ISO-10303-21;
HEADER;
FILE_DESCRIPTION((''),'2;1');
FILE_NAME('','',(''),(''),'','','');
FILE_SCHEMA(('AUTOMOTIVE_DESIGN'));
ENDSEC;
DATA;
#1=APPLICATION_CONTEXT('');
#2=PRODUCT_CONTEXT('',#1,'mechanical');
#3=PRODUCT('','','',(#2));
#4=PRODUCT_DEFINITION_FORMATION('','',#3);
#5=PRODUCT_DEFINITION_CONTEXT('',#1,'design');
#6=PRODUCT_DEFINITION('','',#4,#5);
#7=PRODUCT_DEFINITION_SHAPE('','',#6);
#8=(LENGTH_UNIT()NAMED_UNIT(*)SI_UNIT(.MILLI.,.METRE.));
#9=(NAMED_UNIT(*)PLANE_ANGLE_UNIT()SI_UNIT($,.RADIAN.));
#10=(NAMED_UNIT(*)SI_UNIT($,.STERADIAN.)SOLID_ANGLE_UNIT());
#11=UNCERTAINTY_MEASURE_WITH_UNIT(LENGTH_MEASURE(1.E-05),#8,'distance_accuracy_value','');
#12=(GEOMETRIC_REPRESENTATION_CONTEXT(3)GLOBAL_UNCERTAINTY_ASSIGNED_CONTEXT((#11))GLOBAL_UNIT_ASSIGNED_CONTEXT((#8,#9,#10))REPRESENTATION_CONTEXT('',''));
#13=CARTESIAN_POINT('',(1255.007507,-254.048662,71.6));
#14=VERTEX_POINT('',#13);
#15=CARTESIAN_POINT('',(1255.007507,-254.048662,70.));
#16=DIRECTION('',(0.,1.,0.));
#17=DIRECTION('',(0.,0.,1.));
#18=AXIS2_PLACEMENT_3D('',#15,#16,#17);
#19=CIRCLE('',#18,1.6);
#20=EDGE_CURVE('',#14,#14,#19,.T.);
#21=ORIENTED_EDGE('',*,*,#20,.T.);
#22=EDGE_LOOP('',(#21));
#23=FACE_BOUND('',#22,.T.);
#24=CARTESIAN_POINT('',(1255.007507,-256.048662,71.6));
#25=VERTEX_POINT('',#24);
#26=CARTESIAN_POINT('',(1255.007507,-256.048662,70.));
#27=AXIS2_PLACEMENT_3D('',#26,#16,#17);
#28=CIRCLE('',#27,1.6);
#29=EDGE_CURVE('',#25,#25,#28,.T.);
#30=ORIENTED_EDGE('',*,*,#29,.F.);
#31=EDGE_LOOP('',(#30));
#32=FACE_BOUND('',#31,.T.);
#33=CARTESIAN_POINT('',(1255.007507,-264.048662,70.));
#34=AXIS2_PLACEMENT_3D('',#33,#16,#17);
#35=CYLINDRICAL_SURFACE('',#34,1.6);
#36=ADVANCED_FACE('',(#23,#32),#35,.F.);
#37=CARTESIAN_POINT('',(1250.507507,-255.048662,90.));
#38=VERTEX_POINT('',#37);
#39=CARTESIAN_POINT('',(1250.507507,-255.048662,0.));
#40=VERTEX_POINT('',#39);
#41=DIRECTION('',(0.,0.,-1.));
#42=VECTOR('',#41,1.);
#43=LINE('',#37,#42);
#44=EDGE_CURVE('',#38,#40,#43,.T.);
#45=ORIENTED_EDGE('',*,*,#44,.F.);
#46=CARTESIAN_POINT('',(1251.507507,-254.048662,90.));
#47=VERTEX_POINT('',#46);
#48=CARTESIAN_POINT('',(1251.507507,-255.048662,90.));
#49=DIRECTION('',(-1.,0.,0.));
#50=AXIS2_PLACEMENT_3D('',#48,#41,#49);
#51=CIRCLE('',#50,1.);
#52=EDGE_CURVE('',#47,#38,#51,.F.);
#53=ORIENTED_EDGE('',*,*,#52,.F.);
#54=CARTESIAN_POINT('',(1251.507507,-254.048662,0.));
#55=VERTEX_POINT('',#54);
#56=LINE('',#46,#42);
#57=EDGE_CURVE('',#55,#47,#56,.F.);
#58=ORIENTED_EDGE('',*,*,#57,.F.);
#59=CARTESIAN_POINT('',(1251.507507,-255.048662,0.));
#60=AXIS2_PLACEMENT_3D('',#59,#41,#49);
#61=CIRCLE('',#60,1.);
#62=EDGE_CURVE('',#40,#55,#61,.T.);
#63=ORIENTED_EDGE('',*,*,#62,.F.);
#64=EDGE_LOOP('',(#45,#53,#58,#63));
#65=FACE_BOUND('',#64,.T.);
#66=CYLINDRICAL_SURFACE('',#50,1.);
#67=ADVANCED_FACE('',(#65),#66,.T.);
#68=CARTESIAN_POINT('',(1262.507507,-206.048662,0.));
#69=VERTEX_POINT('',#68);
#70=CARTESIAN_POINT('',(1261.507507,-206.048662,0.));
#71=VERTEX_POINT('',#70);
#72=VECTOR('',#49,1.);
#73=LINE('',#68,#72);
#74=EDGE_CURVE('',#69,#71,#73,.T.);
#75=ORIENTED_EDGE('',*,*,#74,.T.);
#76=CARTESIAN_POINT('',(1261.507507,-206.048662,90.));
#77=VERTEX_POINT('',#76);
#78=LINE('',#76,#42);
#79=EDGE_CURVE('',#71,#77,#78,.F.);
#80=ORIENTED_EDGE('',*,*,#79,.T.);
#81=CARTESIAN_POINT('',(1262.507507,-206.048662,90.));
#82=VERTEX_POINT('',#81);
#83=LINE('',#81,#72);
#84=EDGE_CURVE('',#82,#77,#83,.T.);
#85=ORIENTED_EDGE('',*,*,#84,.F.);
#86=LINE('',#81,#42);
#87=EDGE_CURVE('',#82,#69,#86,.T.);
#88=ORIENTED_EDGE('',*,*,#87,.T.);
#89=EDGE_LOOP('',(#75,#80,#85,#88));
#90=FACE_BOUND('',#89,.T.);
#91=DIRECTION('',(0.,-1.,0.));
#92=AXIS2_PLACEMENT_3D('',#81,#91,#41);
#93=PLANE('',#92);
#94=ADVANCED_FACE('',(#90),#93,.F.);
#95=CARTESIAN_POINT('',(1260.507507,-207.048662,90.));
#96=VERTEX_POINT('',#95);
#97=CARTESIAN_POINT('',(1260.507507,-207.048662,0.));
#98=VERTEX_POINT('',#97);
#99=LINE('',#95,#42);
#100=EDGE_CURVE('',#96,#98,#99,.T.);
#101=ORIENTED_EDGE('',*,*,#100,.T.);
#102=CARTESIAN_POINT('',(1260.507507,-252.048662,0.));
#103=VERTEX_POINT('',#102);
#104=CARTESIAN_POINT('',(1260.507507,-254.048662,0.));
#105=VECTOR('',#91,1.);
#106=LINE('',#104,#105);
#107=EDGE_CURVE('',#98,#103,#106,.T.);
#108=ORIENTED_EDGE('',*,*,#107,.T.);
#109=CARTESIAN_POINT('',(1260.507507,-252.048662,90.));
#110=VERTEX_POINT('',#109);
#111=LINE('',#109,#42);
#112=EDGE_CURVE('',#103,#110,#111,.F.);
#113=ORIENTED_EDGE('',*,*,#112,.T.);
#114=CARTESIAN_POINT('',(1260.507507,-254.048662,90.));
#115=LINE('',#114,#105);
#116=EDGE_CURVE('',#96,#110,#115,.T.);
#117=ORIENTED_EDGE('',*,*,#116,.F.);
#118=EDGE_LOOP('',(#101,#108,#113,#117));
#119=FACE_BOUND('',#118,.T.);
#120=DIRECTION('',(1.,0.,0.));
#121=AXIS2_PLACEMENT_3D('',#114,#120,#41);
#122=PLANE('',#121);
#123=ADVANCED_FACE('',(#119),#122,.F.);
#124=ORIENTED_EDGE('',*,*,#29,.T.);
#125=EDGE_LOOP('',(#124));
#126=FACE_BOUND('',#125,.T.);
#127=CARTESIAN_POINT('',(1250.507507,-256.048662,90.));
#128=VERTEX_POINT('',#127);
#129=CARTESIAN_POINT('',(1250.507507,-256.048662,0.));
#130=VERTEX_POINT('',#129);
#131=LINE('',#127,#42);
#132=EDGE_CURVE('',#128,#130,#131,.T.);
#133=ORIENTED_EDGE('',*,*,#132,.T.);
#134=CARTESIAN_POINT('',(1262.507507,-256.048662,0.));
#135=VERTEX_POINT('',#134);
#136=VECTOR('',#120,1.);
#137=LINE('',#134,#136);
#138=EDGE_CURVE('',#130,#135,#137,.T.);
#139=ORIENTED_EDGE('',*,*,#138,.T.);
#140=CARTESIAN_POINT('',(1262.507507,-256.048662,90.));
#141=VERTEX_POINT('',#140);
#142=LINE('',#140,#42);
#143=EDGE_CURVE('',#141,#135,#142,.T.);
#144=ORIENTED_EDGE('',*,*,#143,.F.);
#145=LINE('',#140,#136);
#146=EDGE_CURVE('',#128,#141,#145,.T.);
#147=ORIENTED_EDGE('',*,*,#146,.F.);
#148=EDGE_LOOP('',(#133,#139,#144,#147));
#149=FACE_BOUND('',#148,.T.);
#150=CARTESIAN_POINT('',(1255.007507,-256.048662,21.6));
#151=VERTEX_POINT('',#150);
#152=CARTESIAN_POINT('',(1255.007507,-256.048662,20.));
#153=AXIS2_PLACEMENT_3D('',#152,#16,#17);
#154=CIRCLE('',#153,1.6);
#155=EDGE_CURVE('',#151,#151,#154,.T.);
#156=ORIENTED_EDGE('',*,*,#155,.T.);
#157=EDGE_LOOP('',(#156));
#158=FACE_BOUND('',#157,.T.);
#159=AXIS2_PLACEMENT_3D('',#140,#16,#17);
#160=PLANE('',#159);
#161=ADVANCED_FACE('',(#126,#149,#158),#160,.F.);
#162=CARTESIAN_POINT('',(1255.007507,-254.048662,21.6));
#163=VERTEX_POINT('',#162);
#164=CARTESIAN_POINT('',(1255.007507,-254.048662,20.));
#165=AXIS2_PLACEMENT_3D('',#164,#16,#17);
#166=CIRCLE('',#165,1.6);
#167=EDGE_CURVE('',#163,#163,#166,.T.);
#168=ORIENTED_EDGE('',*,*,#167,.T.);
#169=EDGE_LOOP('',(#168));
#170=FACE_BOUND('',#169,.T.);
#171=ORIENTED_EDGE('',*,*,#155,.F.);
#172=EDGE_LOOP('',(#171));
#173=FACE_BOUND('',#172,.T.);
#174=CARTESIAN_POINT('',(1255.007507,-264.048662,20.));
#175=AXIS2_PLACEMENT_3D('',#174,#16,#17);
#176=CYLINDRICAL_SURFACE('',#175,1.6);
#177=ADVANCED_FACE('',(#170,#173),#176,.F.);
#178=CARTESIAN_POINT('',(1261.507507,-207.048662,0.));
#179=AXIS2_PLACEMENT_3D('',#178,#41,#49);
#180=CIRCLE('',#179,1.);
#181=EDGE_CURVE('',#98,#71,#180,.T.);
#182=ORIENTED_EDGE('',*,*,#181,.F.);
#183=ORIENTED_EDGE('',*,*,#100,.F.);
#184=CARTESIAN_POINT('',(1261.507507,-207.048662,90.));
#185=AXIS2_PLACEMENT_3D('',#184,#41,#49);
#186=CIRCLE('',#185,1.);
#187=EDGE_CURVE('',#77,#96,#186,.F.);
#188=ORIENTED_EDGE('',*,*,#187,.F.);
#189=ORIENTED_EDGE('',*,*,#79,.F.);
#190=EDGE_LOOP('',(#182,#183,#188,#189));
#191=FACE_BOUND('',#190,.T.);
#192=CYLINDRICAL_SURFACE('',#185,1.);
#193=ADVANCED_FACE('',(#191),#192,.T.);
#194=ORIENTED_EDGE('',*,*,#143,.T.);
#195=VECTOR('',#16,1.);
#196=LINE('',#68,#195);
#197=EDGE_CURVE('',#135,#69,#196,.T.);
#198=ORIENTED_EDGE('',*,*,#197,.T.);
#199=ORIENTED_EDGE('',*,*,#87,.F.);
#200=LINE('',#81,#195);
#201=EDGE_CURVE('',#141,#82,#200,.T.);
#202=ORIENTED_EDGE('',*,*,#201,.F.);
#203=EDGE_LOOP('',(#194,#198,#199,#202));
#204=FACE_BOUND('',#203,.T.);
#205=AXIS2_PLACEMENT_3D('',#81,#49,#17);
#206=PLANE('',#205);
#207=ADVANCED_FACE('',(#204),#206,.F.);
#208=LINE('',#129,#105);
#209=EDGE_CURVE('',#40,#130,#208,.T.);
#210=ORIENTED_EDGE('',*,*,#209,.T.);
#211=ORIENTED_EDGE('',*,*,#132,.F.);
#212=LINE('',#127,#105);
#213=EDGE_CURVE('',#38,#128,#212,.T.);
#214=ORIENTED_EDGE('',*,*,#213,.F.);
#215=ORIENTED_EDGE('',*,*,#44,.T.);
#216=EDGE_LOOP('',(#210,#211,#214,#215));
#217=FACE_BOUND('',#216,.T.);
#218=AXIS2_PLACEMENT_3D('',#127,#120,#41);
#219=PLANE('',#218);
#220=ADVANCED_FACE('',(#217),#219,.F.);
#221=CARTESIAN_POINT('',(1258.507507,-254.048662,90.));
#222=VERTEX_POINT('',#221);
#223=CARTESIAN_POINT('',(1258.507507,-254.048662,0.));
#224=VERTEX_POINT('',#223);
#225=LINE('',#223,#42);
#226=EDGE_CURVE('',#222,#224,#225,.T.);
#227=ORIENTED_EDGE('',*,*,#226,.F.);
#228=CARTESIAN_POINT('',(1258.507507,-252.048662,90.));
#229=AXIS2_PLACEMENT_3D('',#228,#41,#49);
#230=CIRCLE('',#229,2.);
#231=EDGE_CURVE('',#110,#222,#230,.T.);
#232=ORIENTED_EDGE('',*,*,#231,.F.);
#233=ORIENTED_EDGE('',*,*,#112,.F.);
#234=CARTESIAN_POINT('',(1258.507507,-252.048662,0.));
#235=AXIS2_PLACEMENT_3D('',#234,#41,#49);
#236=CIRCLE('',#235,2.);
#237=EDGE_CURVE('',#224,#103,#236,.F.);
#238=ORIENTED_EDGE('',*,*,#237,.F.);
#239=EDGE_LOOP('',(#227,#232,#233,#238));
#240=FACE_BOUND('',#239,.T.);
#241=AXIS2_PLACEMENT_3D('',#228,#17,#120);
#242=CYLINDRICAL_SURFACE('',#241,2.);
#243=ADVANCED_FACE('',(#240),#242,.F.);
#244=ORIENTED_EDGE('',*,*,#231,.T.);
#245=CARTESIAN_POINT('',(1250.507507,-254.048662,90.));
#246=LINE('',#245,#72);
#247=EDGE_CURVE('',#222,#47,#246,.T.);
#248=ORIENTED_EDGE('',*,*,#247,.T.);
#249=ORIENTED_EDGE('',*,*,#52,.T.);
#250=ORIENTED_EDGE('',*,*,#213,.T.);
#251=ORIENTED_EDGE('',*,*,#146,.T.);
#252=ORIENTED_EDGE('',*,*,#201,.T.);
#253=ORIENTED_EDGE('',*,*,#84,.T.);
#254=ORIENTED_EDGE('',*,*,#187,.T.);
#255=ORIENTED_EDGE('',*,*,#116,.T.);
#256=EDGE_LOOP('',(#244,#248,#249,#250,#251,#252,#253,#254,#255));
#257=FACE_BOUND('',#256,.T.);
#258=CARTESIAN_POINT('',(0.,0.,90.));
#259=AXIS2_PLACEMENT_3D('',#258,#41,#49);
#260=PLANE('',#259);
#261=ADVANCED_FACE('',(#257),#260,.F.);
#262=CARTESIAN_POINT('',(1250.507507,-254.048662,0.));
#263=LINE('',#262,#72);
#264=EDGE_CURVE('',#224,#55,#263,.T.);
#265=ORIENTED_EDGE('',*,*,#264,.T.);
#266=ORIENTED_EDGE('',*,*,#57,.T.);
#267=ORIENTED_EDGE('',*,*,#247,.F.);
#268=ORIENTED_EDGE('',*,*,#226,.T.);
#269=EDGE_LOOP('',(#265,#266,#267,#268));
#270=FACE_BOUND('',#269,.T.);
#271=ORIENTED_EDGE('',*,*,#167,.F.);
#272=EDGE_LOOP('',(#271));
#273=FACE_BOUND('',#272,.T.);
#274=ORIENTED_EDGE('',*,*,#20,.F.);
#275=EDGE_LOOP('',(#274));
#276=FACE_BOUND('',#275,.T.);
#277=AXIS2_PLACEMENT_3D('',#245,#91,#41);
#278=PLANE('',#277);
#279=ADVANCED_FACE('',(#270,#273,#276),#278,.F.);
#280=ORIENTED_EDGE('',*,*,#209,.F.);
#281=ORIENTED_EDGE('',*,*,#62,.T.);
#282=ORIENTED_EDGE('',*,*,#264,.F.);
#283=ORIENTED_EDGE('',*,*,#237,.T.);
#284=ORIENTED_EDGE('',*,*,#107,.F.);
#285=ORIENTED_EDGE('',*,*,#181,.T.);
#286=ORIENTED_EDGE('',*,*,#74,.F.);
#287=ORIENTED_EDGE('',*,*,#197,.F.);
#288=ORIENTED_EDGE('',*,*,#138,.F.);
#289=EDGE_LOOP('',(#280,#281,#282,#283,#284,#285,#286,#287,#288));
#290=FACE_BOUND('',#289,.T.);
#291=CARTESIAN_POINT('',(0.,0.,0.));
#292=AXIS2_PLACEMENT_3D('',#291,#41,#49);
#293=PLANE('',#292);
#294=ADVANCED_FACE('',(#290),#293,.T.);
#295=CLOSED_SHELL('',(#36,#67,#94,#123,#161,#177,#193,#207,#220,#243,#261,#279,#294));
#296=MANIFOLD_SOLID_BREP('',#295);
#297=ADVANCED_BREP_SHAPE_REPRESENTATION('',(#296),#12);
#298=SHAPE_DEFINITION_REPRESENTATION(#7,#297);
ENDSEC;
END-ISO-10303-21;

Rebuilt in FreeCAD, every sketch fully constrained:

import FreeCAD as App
import Part
import Sketcher

V = App.Vector
Q = App.Units.Quantity


def edges_at(feature, points):
    """Names of the edges that pass closest to the given points."""
    edges = feature.Shape.Edges
    near = lambda p: min(range(len(edges)), key=lambda i: edges[i].distToShape(Part.Vertex(*p))[0])
    return sorted({f"Edge{near(p) + 1}" for p in points})


def add_polygon(sketch, points):
    """Adds a closed chain of lines whose ends are joined by coincident constraints."""
    first, n = sketch.GeometryCount, len(points)
    for a, b in zip(points, points[1:] + points[:1]):
        sketch.addGeometry(Part.LineSegment(App.Vector(*a, 0), App.Vector(*b, 0)), False)
    for i in range(n):
        sketch.addConstraint(Sketcher.Constraint("Coincident", first + i, 2, first + (i + 1) % n, 1))

doc = App.newDocument("Part")
body = doc.addObject("PartDesign::Body", "Body")

sketch1 = body.newObject("Sketcher::SketchObject", "Sketch")
sketch1.AttachmentSupport = (doc.getObject("XY_Plane"), [""])
sketch1.MapMode = "FlatFace"
add_polygon(sketch1, [(1262.5, -256), (1262.5, -206), (1260.5, -206), (1260.5, -254), (1250.5, -254), (1250.5, -256)])
sketch1.addConstraint([
    Sketcher.Constraint("Vertical", 0),
    Sketcher.Constraint("Horizontal", 1),
    Sketcher.Constraint("Vertical", 2),
    Sketcher.Constraint("Horizontal", 3),
    Sketcher.Constraint("Vertical", 4),
    Sketcher.Constraint("Horizontal", 5),
    Sketcher.Constraint("Equal", 1, 4),
    Sketcher.Constraint("DistanceX", 1, 2, 1, 1, Q("2 mm")),
    Sketcher.Constraint("DistanceX", 3, 2, 3, 1, Q("10 mm")),
    Sketcher.Constraint("DistanceY", 0, 1, 0, 2, Q("50 mm")),
    Sketcher.Constraint("DistanceY", 0, 2, -1, 1, Q("206.048662 mm")),
    Sketcher.Constraint("DistanceX", -1, 1, 0, 2, Q("1262.507507 mm")),
])
pad1 = body.newObject("PartDesign::Pad", "Pad")
pad1.Profile = sketch1
pad1.Length = 90
doc.recompute()

fillet = body.newObject("PartDesign::Fillet", "Fillet")
fillet.Base = (pad1, edges_at(pad1, [(1250.508, -254.049, 45), (1260.508, -206.049, 45)]))
fillet.Radius = 1
doc.recompute()

fillet2 = body.newObject("PartDesign::Fillet", "Fillet001")
fillet2.Base = (fillet, edges_at(fillet, [(1260.508, -254.049, 45)]))
fillet2.Radius = 2

sketch2 = body.newObject("Sketcher::SketchObject", "Sketch001")
sketch2.AttachmentSupport = (doc.getObject("XZ_Plane"), [""])
sketch2.MapMode = "FlatFace"
sketch2.AttachmentOffset = App.Placement(V(0, 0, 254.048662), App.Rotation())
sketch2.addGeometry([
    Part.Circle(V(1255, 70, 0), V(0, 0, 1), 1.6),
    Part.Circle(V(1255, 20, 0), V(0, 0, 1), 1.6),
], False)
sketch2.addConstraint([
    Sketcher.Constraint("Equal", 0, 1),
    Sketcher.Constraint("Vertical", 0, 3, 1, 3),
    Sketcher.Constraint("Diameter", 0, Q("3.2 mm")),
    Sketcher.Constraint("DistanceY", -1, 1, 0, 3, Q("70 mm")),
    Sketcher.Constraint("DistanceY", -1, 1, 1, 3, Q("20 mm")),
    Sketcher.Constraint("DistanceX", -1, 1, 0, 3, Q("1255.007507 mm")),
])
pocket1 = body.newObject("PartDesign::Pocket", "Pocket")
pocket1.Profile = sketch2
pocket1.Length = 10
pocket1.Reversed = True

doc.recompute()
